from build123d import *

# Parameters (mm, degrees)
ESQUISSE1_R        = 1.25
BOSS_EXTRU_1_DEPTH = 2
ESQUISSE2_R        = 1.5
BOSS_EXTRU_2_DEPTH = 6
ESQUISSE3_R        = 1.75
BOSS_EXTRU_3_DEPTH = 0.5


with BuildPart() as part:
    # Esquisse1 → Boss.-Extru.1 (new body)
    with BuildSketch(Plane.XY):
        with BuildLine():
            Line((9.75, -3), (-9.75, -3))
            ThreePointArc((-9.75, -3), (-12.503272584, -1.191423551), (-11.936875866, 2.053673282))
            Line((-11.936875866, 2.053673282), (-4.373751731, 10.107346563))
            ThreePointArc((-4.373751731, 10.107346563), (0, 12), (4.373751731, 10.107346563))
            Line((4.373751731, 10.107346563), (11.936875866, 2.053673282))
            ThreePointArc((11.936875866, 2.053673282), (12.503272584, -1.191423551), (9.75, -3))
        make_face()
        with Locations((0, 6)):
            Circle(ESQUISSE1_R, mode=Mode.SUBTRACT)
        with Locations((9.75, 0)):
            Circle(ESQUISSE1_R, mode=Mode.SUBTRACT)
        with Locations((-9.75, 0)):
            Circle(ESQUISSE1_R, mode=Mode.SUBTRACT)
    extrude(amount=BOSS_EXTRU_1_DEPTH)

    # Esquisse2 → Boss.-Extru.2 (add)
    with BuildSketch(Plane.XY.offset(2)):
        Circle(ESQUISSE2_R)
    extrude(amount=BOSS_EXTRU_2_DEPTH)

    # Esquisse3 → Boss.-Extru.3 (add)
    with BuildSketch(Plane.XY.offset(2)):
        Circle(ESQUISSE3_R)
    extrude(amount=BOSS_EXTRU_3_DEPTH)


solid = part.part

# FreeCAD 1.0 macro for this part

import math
import FreeCAD as App
import Part
import Sketcher

V = App.Vector

doc = App.newDocument("Part")
body = doc.addObject("PartDesign::Body", "Body")

# Sketch on XY plane
sketch1 = body.newObject("Sketcher::SketchObject", "Sketch")
sketch1.AttachmentSupport = (doc.getObject("XY_Plane"), [""])
sketch1.MapMode = "FlatFace"
sketch1.addGeometry([
    Part.LineSegment(V(-9.8, -3, 0), V(9.8, -3, 0)),  # 0
    Part.ArcOfCircle(Part.Circle(V(9.8, 0, 0), V(0, 0, 1), 3), math.radians(-90), math.radians(43)),  # 1
    Part.LineSegment(V(11.9, 2.1, 0), V(4.4, 10.1, 0)),  # 2
    Part.ArcOfCircle(Part.Circle(V(0, 6, 0), V(0, 0, 1), 6), math.radians(43), math.radians(137)),  # 3
    Part.LineSegment(V(-4.4, 10.1, 0), V(-11.9, 2.1, 0)),  # 4
    Part.ArcOfCircle(Part.Circle(V(-9.8, 0, 0), V(0, 0, 1), 3), math.radians(137), math.radians(270)),  # 5
    Part.Circle(V(9.8, 0, 0), V(0, 0, 1), 1.2),  # 6
    Part.Circle(V(-9.8, 0, 0), V(0, 0, 1), 1.2),  # 7
    Part.Circle(V(0, 6, 0), V(0, 0, 1), 1.2),  # 8
], False)
sketch1.addConstraint([
    Sketcher.Constraint("Tangent", 0, 2, 1, 1),
    Sketcher.Constraint("Tangent", 1, 2, 2, 1),
    Sketcher.Constraint("Tangent", 2, 2, 3, 1),
    Sketcher.Constraint("Tangent", 3, 2, 4, 1),
    Sketcher.Constraint("Tangent", 4, 2, 5, 1),
    Sketcher.Constraint("Tangent", 5, 2, 0, 1),
    Sketcher.Constraint("Horizontal", 0),
    Sketcher.Constraint("Coincident", 6, 3, 1, 3),
    Sketcher.Constraint("Coincident", 7, 3, 5, 3),
    Sketcher.Constraint("Coincident", 8, 3, 3, 3),
    Sketcher.Constraint("Equal", 1, 5),
    Sketcher.Constraint("Equal", 6, 7),
    Sketcher.Constraint("Equal", 7, 8),
    Sketcher.Constraint("Symmetric", 1, 3, 5, 3, -1, 1),
    Sketcher.Constraint("PointOnObject", 3, 3, -2),
    Sketcher.Constraint("Radius", 1, 3.0),
    Sketcher.Constraint("Radius", 3, 6.0),
    Sketcher.Constraint("Diameter", 6, 2.5),
    Sketcher.Constraint("DistanceX", 0, 1, 0, 2, 19.5),
    Sketcher.Constraint("DistanceY", -1, 1, 3, 3, 6.0),
])
pad1 = body.newObject("PartDesign::Pad", "Pad")
pad1.Profile = sketch1
pad1.Length = 2

# Sketch on XY plane
sketch2 = body.newObject("Sketcher::SketchObject", "Sketch001")
sketch2.AttachmentSupport = (doc.getObject("XY_Plane"), [""])
sketch2.MapMode = "FlatFace"
sketch2.AttachmentOffset = App.Placement(V(0, 0, 2), App.Rotation())
sketch2.addGeometry(Part.Circle(V(0, 0, 0), V(0, 0, 1), 1.5), False)
sketch2.addConstraint([
    Sketcher.Constraint("Coincident", 0, 3, -1, 1),
    Sketcher.Constraint("Diameter", 0, 3.0),
])
pad2 = body.newObject("PartDesign::Pad", "Pad001")
pad2.Profile = sketch2
pad2.Length = 6

# Sketch on XY plane
sketch3 = body.newObject("Sketcher::SketchObject", "Sketch002")
sketch3.AttachmentSupport = (doc.getObject("XY_Plane"), [""])
sketch3.MapMode = "FlatFace"
sketch3.AttachmentOffset = App.Placement(V(0, 0, 2), App.Rotation())
sketch3.addGeometry(Part.Circle(V(0, 0, 0), V(0, 0, 1), 1.8), False)
sketch3.addConstraint([
    Sketcher.Constraint("Coincident", 0, 3, -1, 1),
    Sketcher.Constraint("Diameter", 0, 3.5),
])
pad3 = body.newObject("PartDesign::Pad", "Pad002")
pad3.Profile = sketch3
pad3.Length = 0.5

doc.recompute()
